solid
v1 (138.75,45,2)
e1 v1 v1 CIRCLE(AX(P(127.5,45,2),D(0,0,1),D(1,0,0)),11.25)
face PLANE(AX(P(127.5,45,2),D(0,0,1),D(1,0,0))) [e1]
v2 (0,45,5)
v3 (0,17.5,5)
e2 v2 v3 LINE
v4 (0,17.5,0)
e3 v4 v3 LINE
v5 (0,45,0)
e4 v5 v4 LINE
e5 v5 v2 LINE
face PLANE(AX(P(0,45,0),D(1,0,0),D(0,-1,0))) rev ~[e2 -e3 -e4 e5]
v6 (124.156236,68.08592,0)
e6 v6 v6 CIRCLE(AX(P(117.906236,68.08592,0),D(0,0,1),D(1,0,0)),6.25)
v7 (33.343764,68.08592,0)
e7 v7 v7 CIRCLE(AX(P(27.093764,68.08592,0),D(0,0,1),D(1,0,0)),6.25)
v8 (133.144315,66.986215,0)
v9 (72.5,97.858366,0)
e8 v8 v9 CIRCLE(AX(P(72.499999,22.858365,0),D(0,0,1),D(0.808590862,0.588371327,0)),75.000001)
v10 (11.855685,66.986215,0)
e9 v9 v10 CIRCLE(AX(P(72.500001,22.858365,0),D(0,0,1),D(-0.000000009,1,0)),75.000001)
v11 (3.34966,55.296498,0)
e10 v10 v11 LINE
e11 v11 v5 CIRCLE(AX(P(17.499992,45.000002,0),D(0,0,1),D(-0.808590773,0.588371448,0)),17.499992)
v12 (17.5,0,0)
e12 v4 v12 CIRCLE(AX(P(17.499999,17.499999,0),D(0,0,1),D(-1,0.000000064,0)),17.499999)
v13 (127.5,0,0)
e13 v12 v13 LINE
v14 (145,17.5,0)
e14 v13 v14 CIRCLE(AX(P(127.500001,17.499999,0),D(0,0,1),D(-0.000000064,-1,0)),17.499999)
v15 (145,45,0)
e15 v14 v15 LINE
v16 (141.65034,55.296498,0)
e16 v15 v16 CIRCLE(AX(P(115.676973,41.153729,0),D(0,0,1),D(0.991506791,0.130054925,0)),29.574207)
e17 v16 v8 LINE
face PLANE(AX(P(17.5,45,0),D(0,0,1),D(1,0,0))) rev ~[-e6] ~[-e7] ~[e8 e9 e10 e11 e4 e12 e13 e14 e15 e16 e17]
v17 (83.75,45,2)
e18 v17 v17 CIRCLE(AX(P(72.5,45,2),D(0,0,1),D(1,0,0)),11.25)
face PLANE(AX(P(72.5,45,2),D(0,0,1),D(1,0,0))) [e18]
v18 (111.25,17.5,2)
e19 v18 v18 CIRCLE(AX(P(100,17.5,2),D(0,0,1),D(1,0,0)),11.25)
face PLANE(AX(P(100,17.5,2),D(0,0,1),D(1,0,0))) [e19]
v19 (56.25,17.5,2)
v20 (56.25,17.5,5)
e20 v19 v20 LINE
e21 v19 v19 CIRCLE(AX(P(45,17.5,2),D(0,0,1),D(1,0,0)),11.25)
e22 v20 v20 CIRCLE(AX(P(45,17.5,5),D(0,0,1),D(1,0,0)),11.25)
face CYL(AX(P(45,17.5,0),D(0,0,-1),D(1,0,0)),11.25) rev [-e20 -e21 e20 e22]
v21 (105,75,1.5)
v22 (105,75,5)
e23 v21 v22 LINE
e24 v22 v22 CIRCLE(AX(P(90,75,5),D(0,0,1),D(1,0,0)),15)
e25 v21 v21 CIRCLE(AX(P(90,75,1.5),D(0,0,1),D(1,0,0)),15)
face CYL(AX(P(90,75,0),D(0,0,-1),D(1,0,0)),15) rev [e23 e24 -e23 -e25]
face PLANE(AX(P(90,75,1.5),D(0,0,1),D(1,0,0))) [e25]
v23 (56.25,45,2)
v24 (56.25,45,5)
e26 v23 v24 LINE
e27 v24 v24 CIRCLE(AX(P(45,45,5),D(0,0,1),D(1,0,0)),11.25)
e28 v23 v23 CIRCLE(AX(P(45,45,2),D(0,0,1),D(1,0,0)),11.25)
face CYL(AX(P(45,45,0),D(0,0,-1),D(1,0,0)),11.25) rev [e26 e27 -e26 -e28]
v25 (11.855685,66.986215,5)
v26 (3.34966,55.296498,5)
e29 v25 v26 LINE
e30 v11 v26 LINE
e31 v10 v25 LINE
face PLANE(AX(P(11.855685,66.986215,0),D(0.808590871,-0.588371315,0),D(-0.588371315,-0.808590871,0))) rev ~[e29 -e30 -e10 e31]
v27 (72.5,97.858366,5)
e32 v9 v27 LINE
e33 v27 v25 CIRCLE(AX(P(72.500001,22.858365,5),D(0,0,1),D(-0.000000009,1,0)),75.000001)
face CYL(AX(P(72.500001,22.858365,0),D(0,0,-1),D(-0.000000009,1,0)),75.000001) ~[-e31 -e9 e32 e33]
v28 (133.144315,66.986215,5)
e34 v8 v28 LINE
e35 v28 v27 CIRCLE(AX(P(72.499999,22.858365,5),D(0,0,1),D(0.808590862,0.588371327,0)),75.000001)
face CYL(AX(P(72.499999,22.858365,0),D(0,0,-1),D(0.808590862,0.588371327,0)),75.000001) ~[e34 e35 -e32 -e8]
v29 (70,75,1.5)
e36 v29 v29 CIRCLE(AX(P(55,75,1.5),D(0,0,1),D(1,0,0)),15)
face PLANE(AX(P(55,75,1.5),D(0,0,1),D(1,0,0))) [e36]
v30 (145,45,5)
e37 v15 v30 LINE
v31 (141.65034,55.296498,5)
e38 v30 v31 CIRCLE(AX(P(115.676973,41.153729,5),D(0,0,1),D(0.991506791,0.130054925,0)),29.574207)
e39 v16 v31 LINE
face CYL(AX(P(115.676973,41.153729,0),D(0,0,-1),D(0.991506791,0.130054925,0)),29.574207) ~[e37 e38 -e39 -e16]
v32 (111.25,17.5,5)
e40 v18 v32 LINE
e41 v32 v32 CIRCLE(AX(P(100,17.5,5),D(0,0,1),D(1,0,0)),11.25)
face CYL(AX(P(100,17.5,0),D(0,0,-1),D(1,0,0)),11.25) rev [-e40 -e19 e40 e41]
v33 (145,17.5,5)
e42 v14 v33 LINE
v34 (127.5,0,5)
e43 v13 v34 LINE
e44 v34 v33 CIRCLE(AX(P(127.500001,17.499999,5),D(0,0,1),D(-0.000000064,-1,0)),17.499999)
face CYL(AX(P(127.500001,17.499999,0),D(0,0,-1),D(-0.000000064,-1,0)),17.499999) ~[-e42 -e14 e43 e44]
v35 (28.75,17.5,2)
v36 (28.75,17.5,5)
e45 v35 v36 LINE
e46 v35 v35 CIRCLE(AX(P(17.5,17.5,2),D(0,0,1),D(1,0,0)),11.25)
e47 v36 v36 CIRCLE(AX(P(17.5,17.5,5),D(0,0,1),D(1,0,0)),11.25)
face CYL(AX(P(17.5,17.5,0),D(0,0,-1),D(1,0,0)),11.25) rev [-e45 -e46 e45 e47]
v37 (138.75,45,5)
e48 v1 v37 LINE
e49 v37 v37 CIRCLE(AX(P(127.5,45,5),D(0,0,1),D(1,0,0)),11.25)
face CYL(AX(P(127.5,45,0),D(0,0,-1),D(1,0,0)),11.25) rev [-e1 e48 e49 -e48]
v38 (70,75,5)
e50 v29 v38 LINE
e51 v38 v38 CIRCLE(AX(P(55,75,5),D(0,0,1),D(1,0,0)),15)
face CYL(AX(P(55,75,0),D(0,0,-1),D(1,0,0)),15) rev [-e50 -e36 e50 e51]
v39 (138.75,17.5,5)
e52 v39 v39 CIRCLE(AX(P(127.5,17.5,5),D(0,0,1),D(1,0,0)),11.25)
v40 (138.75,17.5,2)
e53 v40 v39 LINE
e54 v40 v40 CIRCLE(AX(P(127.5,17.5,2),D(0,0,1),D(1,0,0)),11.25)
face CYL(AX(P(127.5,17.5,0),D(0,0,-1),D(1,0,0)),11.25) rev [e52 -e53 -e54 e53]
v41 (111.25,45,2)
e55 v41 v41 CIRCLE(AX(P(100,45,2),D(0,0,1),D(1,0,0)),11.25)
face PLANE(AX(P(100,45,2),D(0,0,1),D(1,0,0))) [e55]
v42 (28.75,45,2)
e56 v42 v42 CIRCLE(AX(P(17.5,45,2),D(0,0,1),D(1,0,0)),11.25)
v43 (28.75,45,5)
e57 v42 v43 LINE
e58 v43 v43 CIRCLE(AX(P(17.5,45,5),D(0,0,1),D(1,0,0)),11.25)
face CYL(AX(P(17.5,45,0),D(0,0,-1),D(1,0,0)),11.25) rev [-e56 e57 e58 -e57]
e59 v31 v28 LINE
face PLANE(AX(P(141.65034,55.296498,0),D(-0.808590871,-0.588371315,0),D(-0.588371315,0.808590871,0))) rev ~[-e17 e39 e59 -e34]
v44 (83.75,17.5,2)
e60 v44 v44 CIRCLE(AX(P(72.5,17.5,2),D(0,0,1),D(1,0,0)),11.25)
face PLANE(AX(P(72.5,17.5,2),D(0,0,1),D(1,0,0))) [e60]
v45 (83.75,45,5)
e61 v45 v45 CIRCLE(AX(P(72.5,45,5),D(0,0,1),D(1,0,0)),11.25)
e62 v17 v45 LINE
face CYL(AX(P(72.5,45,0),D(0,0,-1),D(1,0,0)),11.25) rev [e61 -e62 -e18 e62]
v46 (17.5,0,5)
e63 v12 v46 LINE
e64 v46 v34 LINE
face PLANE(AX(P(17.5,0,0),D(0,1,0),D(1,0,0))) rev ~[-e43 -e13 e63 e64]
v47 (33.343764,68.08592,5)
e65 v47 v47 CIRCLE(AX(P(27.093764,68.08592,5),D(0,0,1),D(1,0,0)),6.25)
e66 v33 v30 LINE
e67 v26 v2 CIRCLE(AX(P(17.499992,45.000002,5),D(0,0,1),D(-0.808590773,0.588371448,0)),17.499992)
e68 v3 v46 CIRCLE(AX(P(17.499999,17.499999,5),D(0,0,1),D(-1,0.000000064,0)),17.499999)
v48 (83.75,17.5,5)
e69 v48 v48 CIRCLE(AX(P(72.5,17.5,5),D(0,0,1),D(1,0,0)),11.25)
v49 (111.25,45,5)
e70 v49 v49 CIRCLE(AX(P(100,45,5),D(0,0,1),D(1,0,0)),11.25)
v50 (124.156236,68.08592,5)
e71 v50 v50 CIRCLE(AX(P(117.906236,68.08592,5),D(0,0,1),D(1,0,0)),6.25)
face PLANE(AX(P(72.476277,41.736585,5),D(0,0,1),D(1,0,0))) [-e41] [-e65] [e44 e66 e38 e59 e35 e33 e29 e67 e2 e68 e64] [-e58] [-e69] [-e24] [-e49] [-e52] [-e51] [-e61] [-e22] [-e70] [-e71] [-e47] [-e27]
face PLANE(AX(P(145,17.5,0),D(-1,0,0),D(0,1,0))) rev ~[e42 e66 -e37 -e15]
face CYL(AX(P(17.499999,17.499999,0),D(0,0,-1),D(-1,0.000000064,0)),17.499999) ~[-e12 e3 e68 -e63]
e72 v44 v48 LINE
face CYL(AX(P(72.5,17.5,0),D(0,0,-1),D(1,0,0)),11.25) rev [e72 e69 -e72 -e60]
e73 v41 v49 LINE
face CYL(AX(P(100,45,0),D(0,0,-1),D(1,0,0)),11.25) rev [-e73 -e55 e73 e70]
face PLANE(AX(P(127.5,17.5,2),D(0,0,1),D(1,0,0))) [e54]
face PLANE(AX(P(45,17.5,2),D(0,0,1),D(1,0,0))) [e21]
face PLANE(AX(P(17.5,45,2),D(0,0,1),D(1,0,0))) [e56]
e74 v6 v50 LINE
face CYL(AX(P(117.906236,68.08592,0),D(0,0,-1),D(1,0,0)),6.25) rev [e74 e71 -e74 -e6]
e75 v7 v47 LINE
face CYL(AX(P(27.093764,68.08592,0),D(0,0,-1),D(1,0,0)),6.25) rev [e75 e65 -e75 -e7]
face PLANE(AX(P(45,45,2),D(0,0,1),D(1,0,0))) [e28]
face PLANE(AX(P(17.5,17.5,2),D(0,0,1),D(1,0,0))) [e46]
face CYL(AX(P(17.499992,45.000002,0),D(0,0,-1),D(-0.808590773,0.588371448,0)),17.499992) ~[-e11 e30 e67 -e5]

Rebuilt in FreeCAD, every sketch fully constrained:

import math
import FreeCAD as App
import Part
import Sketcher
from FreeCAD import Vector
Q = App.Units.Quantity

doc = App.newDocument("Part")
body = doc.addObject("PartDesign::Body", "Body")

# Sketch on XY plane
sketch1 = doc.addObject("Sketcher::SketchObject", "Sketch")
body.addObject(sketch1)
sketch1.AttachmentSupport = (doc.XY_Plane, [""])
sketch1.MapMode = "FlatFace"
sketch1.addGeometry(Part.ArcOfCircle(Part.Circle(Vector(17, 45, 0), Vector(0, 0, 1), 17), math.radians(144), math.radians(180)), False)
sketch1.addGeometry(Part.LineSegment(Vector(0, 45, 0), Vector(0, 18, 0)), False)
sketch1.addGeometry(Part.ArcOfCircle(Part.Circle(Vector(17, 17, 0), Vector(0, 0, 1), 17), math.radians(180), math.radians(270)), False)
sketch1.addGeometry(Part.LineSegment(Vector(18, 0, 0), Vector(128, 0, 0)), False)
sketch1.addGeometry(Part.ArcOfCircle(Part.Circle(Vector(128, 17, 0), Vector(0, 0, 1), 17), math.radians(-90), math.radians(0)), False)
sketch1.addGeometry(Part.LineSegment(Vector(145, 18, 0), Vector(145, 45, 0)), False)
sketch1.addGeometry(Part.ArcOfCircle(Part.Circle(Vector(116, 41, 0), Vector(0, 0, 1), 30), math.radians(7), math.radians(29)), False)
sketch1.addGeometry(Part.LineSegment(Vector(142, 55, 0), Vector(133, 67, 0)), False)
sketch1.addGeometry(Part.ArcOfCircle(Part.Circle(Vector(72, 23, 0), Vector(0, 0, 1), 75), math.radians(36), math.radians(90)), False)
sketch1.addGeometry(Part.ArcOfCircle(Part.Circle(Vector(73, 23, 0), Vector(0, 0, 1), 75), math.radians(90), math.radians(144)), False)
sketch1.addGeometry(Part.LineSegment(Vector(12, 67, 0), Vector(3, 55, 0)), False)
sketch1.addGeometry(Part.Circle(Vector(18, 18, 0), Vector(0, 0, 1), 11), False)
sketch1.addGeometry(Part.Circle(Vector(45, 18, 0), Vector(0, 0, 1), 11), False)
sketch1.addGeometry(Part.Circle(Vector(18, 45, 0), Vector(0, 0, 1), 11), False)
sketch1.addGeometry(Part.Circle(Vector(45, 45, 0), Vector(0, 0, 1), 11), False)
sketch1.addGeometry(Part.Circle(Vector(72, 18, 0), Vector(0, 0, 1), 11), False)
sketch1.addGeometry(Part.Circle(Vector(100, 18, 0), Vector(0, 0, 1), 11), False)
sketch1.addGeometry(Part.Circle(Vector(128, 18, 0), Vector(0, 0, 1), 11), False)
sketch1.addGeometry(Part.Circle(Vector(72, 45, 0), Vector(0, 0, 1), 11), False)
sketch1.addGeometry(Part.Circle(Vector(100, 45, 0), Vector(0, 0, 1), 11), False)
sketch1.addGeometry(Part.Circle(Vector(128, 45, 0), Vector(0, 0, 1), 11), False)
sketch1.addGeometry(Part.Circle(Vector(27, 68, 0), Vector(0, 0, 1), 6), False)
sketch1.addGeometry(Part.Circle(Vector(55, 75, 0), Vector(0, 0, 1), 15), False)
sketch1.addGeometry(Part.Circle(Vector(118, 68, 0), Vector(0, 0, 1), 6), False)
sketch1.addGeometry(Part.Circle(Vector(90, 75, 0), Vector(0, 0, 1), 15), False)
sketch1.addConstraint(Sketcher.Constraint("Tangent", 0, 2, 1, 1))
sketch1.addConstraint(Sketcher.Constraint("Tangent", 1, 2, 2, 1))
sketch1.addConstraint(Sketcher.Constraint("Tangent", 2, 2, 3, 1))
sketch1.addConstraint(Sketcher.Constraint("Tangent", 3, 2, 4, 1))
sketch1.addConstraint(Sketcher.Constraint("Tangent", 4, 2, 5, 1))
sketch1.addConstraint(Sketcher.Constraint("Coincident", 5, 2, 6, 1))
sketch1.addConstraint(Sketcher.Constraint("Coincident", 6, 2, 7, 1))
sketch1.addConstraint(Sketcher.Constraint("Tangent", 7, 2, 8, 1))
sketch1.addConstraint(Sketcher.Constraint("Tangent", 8, 2, 9, 1))
sketch1.addConstraint(Sketcher.Constraint("Tangent", 9, 2, 10, 1))
sketch1.addConstraint(Sketcher.Constraint("Tangent", 10, 2, 0, 1))
sketch1.addConstraint(Sketcher.Constraint("Vertical", 1))
sketch1.addConstraint(Sketcher.Constraint("Horizontal", 3))
sketch1.addConstraint(Sketcher.Constraint("Vertical", 5))
sketch1.addConstraint(Sketcher.Constraint("Coincident", 11, 3, 2, 3))
sketch1.addConstraint(Sketcher.Constraint("Coincident", 13, 3, 0, 3))
sketch1.addConstraint(Sketcher.Constraint("Coincident", 17, 3, 4, 3))
sketch1.addConstraint(Sketcher.Constraint("Equal", 2, 4))
sketch1.addConstraint(Sketcher.Constraint("Equal", 8, 9))
sketch1.addConstraint(Sketcher.Constraint("Equal", 11, 12))
sketch1.addConstraint(Sketcher.Constraint("Equal", 12, 13))
sketch1.addConstraint(Sketcher.Constraint("Equal", 13, 14))
sketch1.addConstraint(Sketcher.Constraint("Equal", 14, 15))
sketch1.addConstraint(Sketcher.Constraint("Equal", 15, 16))
sketch1.addConstraint(Sketcher.Constraint("Equal", 16, 17))
sketch1.addConstraint(Sketcher.Constraint("Equal", 17, 18))
sketch1.addConstraint(Sketcher.Constraint("Equal", 18, 19))
sketch1.addConstraint(Sketcher.Constraint("Equal", 19, 20))
sketch1.addConstraint(Sketcher.Constraint("Equal", 21, 23))
sketch1.addConstraint(Sketcher.Constraint("Equal", 22, 24))
sketch1.addConstraint(Sketcher.Constraint("PointOnObject", 0, 2, -2))
sketch1.addConstraint(Sketcher.Constraint("PointOnObject", 2, 2, -1))
sketch1.addConstraint(Sketcher.Constraint("Horizontal", 11, 3, 12, 3))
sketch1.addConstraint(Sketcher.Constraint("Horizontal", 13, 3, 14, 3))
sketch1.addConstraint(Sketcher.Constraint("Horizontal", 12, 3, 15, 3))
sketch1.addConstraint(Sketcher.Constraint("Horizontal", 15, 3, 16, 3))
sketch1.addConstraint(Sketcher.Constraint("Horizontal", 14, 3, 18, 3))
sketch1.addConstraint(Sketcher.Constraint("Horizontal", 18, 3, 19, 3))
sketch1.addConstraint(Sketcher.Constraint("Horizontal", 19, 3, 20, 3))
sketch1.addConstraint(Sketcher.Constraint("Horizontal", 21, 3, 23, 3))
sketch1.addConstraint(Sketcher.Constraint("Horizontal", 22, 3, 24, 3))
sketch1.addConstraint(Sketcher.Constraint("Horizontal", 0, 2, 5, 2))
sketch1.addConstraint(Sketcher.Constraint("Horizontal", 7, 2, 9, 2))
sketch1.addConstraint(Sketcher.Constraint("Horizontal", 6, 2, 10, 2))
sketch1.addConstraint(Sketcher.Constraint("Vertical", 11, 3, 13, 3))
sketch1.addConstraint(Sketcher.Constraint("Vertical", 12, 3, 14, 3))
sketch1.addConstraint(Sketcher.Constraint("Vertical", 9, 3, 15, 3))
sketch1.addConstraint(Sketcher.Constraint("Vertical", 15, 3, 18, 3))
sketch1.addConstraint(Sketcher.Constraint("Vertical", 16, 3, 19, 3))
sketch1.addConstraint(Sketcher.Constraint("Vertical", 17, 3, 20, 3))
sketch1.addConstraint(Sketcher.Constraint("Vertical", 18, 3, 8, 2))
sketch1.addConstraint(Sketcher.Constraint("Diameter", 22, Q("30 mm")))
sketch1.addConstraint(Sketcher.Constraint("Radius", 8, Q("75.000001 mm")))
sketch1.addConstraint(Sketcher.Constraint("Diameter", 11, Q("22.5 mm")))
sketch1.addConstraint(Sketcher.Constraint("Diameter", 21, Q("12.5 mm")))
sketch1.addConstraint(Sketcher.Constraint("Radius", 2, Q("17.499999 mm")))
sketch1.addConstraint(Sketcher.Constraint("DistanceX", 3, 1, 3, 2, Q("110 mm")))
sketch1.addConstraint(Sketcher.Constraint("DistanceY", 1, 2, 1, 1, Q("27.5 mm")))
sketch1.addConstraint(Sketcher.Constraint("DistanceX", -1, 1, 12, 3, Q("45 mm")))
sketch1.addConstraint(Sketcher.Constraint("DistanceX", -1, 1, 16, 3, Q("100 mm")))
sketch1.addConstraint(Sketcher.Constraint("DistanceX", -1, 1, 22, 3, Q("55 mm")))
sketch1.addConstraint(Sketcher.Constraint("DistanceY", -1, 1, 22, 3, Q("75 mm")))
sketch1.addConstraint(Sketcher.Constraint("DistanceX", -1, 1, 24, 3, Q("90 mm")))
sketch1.addConstraint(Sketcher.Constraint("DistanceX", 2, 3, 8, 3, Q("55 mm")))
sketch1.addConstraint(Sketcher.Constraint("Radius", 6, Q("29.574207 mm")))
sketch1.addConstraint(Sketcher.Constraint("Distance", 7, Q("14.4569 mm")))
sketch1.addConstraint(Sketcher.Constraint("DistanceY", -1, 1, 21, 3, Q("68.08592 mm")))
sketch1.addConstraint(Sketcher.Constraint("DistanceX", 0, 3, 21, 3, Q("9.593772 mm")))
sketch1.addConstraint(Sketcher.Constraint("DistanceX", 23, 3, 7, 2, Q("15.238079 mm")))
pad1 = doc.addObject("PartDesign::Pad", "Pad")
body.addObject(pad1)
pad1.Profile = sketch1
pad1.Length = 5

# Sketch on XY plane
sketch2 = doc.addObject("Sketcher::SketchObject", "Sketch001")
body.addObject(sketch2)
sketch2.AttachmentSupport = (doc.XY_Plane, [""])
sketch2.MapMode = "FlatFace"
sketch2.addGeometry(Part.Circle(Vector(55, 75, 0), Vector(0, 0, 1), 15), False)
sketch2.addGeometry(Part.Circle(Vector(90, 75, 0), Vector(0, 0, 1), 15), False)
sketch2.addConstraint(Sketcher.Constraint("Equal", 0, 1))
sketch2.addConstraint(Sketcher.Constraint("Horizontal", 0, 3, 1, 3))
sketch2.addConstraint(Sketcher.Constraint("Diameter", 0, Q("30 mm")))
sketch2.addConstraint(Sketcher.Constraint("DistanceX", -1, 1, 0, 3, Q("55 mm")))
sketch2.addConstraint(Sketcher.Constraint("DistanceY", -1, 1, 0, 3, Q("75 mm")))
sketch2.addConstraint(Sketcher.Constraint("DistanceX", -1, 1, 1, 3, Q("90 mm")))
pad2 = doc.addObject("PartDesign::Pad", "Pad001")
body.addObject(pad2)
pad2.Profile = sketch2
pad2.Length = 1.5

# Sketch on XY plane
sketch3 = doc.addObject("Sketcher::SketchObject", "Sketch002")
body.addObject(sketch3)
sketch3.AttachmentSupport = (doc.XY_Plane, [""])
sketch3.MapMode = "FlatFace"
sketch3.addGeometry(Part.Circle(Vector(18, 45, 0), Vector(0, 0, 1), 11), False)
sketch3.addGeometry(Part.Circle(Vector(18, 18, 0), Vector(0, 0, 1), 11), False)
sketch3.addGeometry(Part.Circle(Vector(45, 45, 0), Vector(0, 0, 1), 11), False)
sketch3.addGeometry(Part.Circle(Vector(45, 18, 0), Vector(0, 0, 1), 11), False)
sketch3.addGeometry(Part.Circle(Vector(72, 45, 0), Vector(0, 0, 1), 11), False)
sketch3.addGeometry(Part.Circle(Vector(72, 18, 0), Vector(0, 0, 1), 11), False)
sketch3.addGeometry(Part.Circle(Vector(100, 45, 0), Vector(0, 0, 1), 11), False)
sketch3.addGeometry(Part.Circle(Vector(100, 18, 0), Vector(0, 0, 1), 11), False)
sketch3.addGeometry(Part.Circle(Vector(128, 45, 0), Vector(0, 0, 1), 11), False)
sketch3.addGeometry(Part.Circle(Vector(128, 18, 0), Vector(0, 0, 1), 11), False)
sketch3.addConstraint(Sketcher.Constraint("Equal", 0, 1))
sketch3.addConstraint(Sketcher.Constraint("Equal", 1, 2))
sketch3.addConstraint(Sketcher.Constraint("Equal", 2, 3))
sketch3.addConstraint(Sketcher.Constraint("Equal", 3, 4))
sketch3.addConstraint(Sketcher.Constraint("Equal", 4, 5))
sketch3.addConstraint(Sketcher.Constraint("Equal", 5, 6))
sketch3.addConstraint(Sketcher.Constraint("Equal", 6, 7))
sketch3.addConstraint(Sketcher.Constraint("Equal", 7, 8))
sketch3.addConstraint(Sketcher.Constraint("Equal", 8, 9))
sketch3.addConstraint(Sketcher.Constraint("Horizontal", 0, 3, 2, 3))
sketch3.addConstraint(Sketcher.Constraint("Horizontal", 1, 3, 3, 3))
sketch3.addConstraint(Sketcher.Constraint("Horizontal", 2, 3, 4, 3))
sketch3.addConstraint(Sketcher.Constraint("Horizontal", 3, 3, 5, 3))
sketch3.addConstraint(Sketcher.Constraint("Horizontal", 4, 3, 6, 3))
sketch3.addConstraint(Sketcher.Constraint("Horizontal", 5, 3, 7, 3))
sketch3.addConstraint(Sketcher.Constraint("Horizontal", 6, 3, 8, 3))
sketch3.addConstraint(Sketcher.Constraint("Horizontal", 7, 3, 9, 3))
sketch3.addConstraint(Sketcher.Constraint("Vertical", 0, 3, 1, 3))
sketch3.addConstraint(Sketcher.Constraint("Vertical", 2, 3, 3, 3))
sketch3.addConstraint(Sketcher.Constraint("Vertical", 4, 3, 5, 3))
sketch3.addConstraint(Sketcher.Constraint("Vertical", 6, 3, 7, 3))
sketch3.addConstraint(Sketcher.Constraint("Vertical", 8, 3, 9, 3))
sketch3.addConstraint(Sketcher.Constraint("Diameter", 0, Q("22.5 mm")))
sketch3.addConstraint(Sketcher.Constraint("DistanceY", -1, 1, 0, 3, Q("45 mm")))
sketch3.addConstraint(Sketcher.Constraint("DistanceX", -1, 1, 2, 3, Q("45 mm")))
sketch3.addConstraint(Sketcher.Constraint("DistanceX", -1, 1, 6, 3, Q("100 mm")))
sketch3.addConstraint(Sketcher.Constraint("DistanceX", 0, 3, 4, 3, Q("55 mm")))
sketch3.addConstraint(Sketcher.Constraint("DistanceX", 4, 3, 8, 3, Q("55 mm")))
sketch3.addConstraint(Sketcher.Constraint("DistanceX", -1, 1, 0, 3, Q("17.5 mm")))
sketch3.addConstraint(Sketcher.Constraint("DistanceY", -1, 1, 1, 3, Q("17.5 mm")))
pad3 = doc.addObject("PartDesign::Pad", "Pad002")
body.addObject(pad3)
pad3.Profile = sketch3
pad3.Length = 2

doc.recompute()
